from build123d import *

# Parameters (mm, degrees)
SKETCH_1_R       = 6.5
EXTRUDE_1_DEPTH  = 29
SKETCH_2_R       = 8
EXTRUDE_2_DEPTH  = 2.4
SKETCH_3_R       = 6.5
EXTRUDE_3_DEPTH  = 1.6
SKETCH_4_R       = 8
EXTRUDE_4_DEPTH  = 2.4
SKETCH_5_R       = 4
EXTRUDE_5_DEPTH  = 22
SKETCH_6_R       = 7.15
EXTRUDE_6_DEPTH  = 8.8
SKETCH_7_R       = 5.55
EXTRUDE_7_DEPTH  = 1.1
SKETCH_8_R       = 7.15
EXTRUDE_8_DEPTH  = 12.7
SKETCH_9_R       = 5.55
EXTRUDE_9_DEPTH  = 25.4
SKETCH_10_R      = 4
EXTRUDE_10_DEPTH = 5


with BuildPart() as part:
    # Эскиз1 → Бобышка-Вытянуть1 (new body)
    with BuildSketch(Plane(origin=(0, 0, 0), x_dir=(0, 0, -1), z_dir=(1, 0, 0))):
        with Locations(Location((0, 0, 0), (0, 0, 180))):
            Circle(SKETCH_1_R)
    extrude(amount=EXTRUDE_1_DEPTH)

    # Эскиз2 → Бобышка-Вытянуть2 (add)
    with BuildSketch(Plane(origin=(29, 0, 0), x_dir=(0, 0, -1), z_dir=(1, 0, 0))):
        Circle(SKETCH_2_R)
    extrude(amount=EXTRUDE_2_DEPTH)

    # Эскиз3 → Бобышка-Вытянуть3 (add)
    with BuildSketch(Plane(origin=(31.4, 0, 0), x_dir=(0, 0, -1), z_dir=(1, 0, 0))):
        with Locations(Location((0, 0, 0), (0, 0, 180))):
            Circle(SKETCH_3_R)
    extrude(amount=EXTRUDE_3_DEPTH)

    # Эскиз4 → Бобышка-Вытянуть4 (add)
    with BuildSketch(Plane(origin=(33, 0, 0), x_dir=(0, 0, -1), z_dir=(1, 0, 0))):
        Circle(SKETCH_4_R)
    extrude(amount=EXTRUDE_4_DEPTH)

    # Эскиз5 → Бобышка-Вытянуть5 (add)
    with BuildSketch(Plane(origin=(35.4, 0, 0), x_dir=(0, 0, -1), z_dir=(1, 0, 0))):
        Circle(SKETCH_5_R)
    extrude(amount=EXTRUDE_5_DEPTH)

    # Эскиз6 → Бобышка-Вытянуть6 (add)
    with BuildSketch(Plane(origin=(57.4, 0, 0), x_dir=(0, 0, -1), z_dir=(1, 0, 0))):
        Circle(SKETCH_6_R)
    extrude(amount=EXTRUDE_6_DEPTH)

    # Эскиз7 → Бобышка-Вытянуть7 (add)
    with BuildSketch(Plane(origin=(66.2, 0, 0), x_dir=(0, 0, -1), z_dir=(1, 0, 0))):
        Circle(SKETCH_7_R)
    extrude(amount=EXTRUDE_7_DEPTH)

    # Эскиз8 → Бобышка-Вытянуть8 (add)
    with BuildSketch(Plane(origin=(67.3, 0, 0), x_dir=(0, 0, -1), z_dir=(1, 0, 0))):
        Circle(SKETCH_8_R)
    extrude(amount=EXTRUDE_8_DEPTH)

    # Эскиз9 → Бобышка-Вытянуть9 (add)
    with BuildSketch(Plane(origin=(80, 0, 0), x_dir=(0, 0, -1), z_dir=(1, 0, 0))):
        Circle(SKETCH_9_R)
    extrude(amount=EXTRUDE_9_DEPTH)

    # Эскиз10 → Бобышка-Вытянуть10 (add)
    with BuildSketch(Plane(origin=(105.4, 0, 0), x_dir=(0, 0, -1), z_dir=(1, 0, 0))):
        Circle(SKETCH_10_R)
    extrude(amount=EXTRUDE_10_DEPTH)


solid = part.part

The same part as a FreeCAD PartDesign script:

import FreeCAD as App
import Part
import Sketcher

V = App.Vector
Q = App.Units.Quantity

doc = App.newDocument("Part")
body = doc.addObject("PartDesign::Body", "Body")

# Sketch on YZ plane
sketch1 = doc.addObject("Sketcher::SketchObject", "Sketch")
body.addObject(sketch1)
sketch1.AttachmentSupport = (doc.YZ_Plane, [""])
sketch1.MapMode = "FlatFace"
sketch1.addGeometry(Part.Circle(V(0, 0, 0), V(0, 0, 1), 6), False)
sketch1.addConstraint([
    Sketcher.Constraint("Coincident", 0, 3, -1, 1),
    Sketcher.Constraint("Diameter", 0, Q("13 mm")),
])
pad1 = doc.addObject("PartDesign::Pad", "Pad")
body.addObject(pad1)
pad1.Profile = sketch1
pad1.Length = 29

# Sketch on YZ plane
sketch2 = doc.addObject("Sketcher::SketchObject", "Sketch001")
body.addObject(sketch2)
sketch2.AttachmentSupport = (doc.YZ_Plane, [""])
sketch2.MapMode = "FlatFace"
sketch2.AttachmentOffset = App.Placement(V(0, 0, 29), App.Rotation())
sketch2.addGeometry(Part.Circle(V(0, 0, 0), V(0, 0, 1), 8), False)
sketch2.addConstraint([
    Sketcher.Constraint("Coincident", 0, 3, -1, 1),
    Sketcher.Constraint("Diameter", 0, Q("16 mm")),
])
pad2 = doc.addObject("PartDesign::Pad", "Pad001")
body.addObject(pad2)
pad2.Profile = sketch2
pad2.Length = 2.4

# Sketch on YZ plane
sketch3 = doc.addObject("Sketcher::SketchObject", "Sketch002")
body.addObject(sketch3)
sketch3.AttachmentSupport = (doc.YZ_Plane, [""])
sketch3.MapMode = "FlatFace"
sketch3.AttachmentOffset = App.Placement(V(0, 0, 31.4), App.Rotation())
sketch3.addGeometry(Part.Circle(V(0, 0, 0), V(0, 0, 1), 6), False)
sketch3.addConstraint([
    Sketcher.Constraint("Coincident", 0, 3, -1, 1),
    Sketcher.Constraint("Diameter", 0, Q("13 mm")),
])
pad3 = doc.addObject("PartDesign::Pad", "Pad002")
body.addObject(pad3)
pad3.Profile = sketch3
pad3.Length = 1.6

# Sketch on YZ plane
sketch4 = doc.addObject("Sketcher::SketchObject", "Sketch003")
body.addObject(sketch4)
sketch4.AttachmentSupport = (doc.YZ_Plane, [""])
sketch4.MapMode = "FlatFace"
sketch4.AttachmentOffset = App.Placement(V(0, 0, 33), App.Rotation())
sketch4.addGeometry(Part.Circle(V(0, 0, 0), V(0, 0, 1), 8), False)
sketch4.addConstraint([
    Sketcher.Constraint("Coincident", 0, 3, -1, 1),
    Sketcher.Constraint("Diameter", 0, Q("16 mm")),
])
pad4 = doc.addObject("PartDesign::Pad", "Pad003")
body.addObject(pad4)
pad4.Profile = sketch4
pad4.Length = 2.4

# Sketch on YZ plane
sketch5 = doc.addObject("Sketcher::SketchObject", "Sketch004")
body.addObject(sketch5)
sketch5.AttachmentSupport = (doc.YZ_Plane, [""])
sketch5.MapMode = "FlatFace"
sketch5.AttachmentOffset = App.Placement(V(0, 0, 35.4), App.Rotation())
sketch5.addGeometry(Part.Circle(V(0, 0, 0), V(0, 0, 1), 4), False)
sketch5.addConstraint([
    Sketcher.Constraint("Coincident", 0, 3, -1, 1),
    Sketcher.Constraint("Diameter", 0, Q("8 mm")),
])
pad5 = doc.addObject("PartDesign::Pad", "Pad004")
body.addObject(pad5)
pad5.Profile = sketch5
pad5.Length = 22

# Sketch on YZ plane
sketch6 = doc.addObject("Sketcher::SketchObject", "Sketch005")
body.addObject(sketch6)
sketch6.AttachmentSupport = (doc.YZ_Plane, [""])
sketch6.MapMode = "FlatFace"
sketch6.AttachmentOffset = App.Placement(V(0, 0, 57.4), App.Rotation())
sketch6.addGeometry(Part.Circle(V(0, 0, 0), V(0, 0, 1), 7), False)
sketch6.addConstraint([
    Sketcher.Constraint("Coincident", 0, 3, -1, 1),
    Sketcher.Constraint("Diameter", 0, Q("14.3 mm")),
])
pad6 = doc.addObject("PartDesign::Pad", "Pad005")
body.addObject(pad6)
pad6.Profile = sketch6
pad6.Length = 8.8

# Sketch on YZ plane
sketch7 = doc.addObject("Sketcher::SketchObject", "Sketch006")
body.addObject(sketch7)
sketch7.AttachmentSupport = (doc.YZ_Plane, [""])
sketch7.MapMode = "FlatFace"
sketch7.AttachmentOffset = App.Placement(V(0, 0, 66.2), App.Rotation())
sketch7.addGeometry(Part.Circle(V(0, 0, 0), V(0, 0, 1), 6), False)
sketch7.addConstraint([
    Sketcher.Constraint("Coincident", 0, 3, -1, 1),
    Sketcher.Constraint("Diameter", 0, Q("11.1 mm")),
])
pad7 = doc.addObject("PartDesign::Pad", "Pad006")
body.addObject(pad7)
pad7.Profile = sketch7
pad7.Length = 1.1

# Sketch on YZ plane
sketch8 = doc.addObject("Sketcher::SketchObject", "Sketch007")
body.addObject(sketch8)
sketch8.AttachmentSupport = (doc.YZ_Plane, [""])
sketch8.MapMode = "FlatFace"
sketch8.AttachmentOffset = App.Placement(V(0, 0, 67.3), App.Rotation())
sketch8.addGeometry(Part.Circle(V(0, 0, 0), V(0, 0, 1), 7), False)
sketch8.addConstraint([
    Sketcher.Constraint("Coincident", 0, 3, -1, 1),
    Sketcher.Constraint("Diameter", 0, Q("14.3 mm")),
])
pad8 = doc.addObject("PartDesign::Pad", "Pad007")
body.addObject(pad8)
pad8.Profile = sketch8
pad8.Length = 12.7

# Sketch on YZ plane
sketch9 = doc.addObject("Sketcher::SketchObject", "Sketch008")
body.addObject(sketch9)
sketch9.AttachmentSupport = (doc.YZ_Plane, [""])
sketch9.MapMode = "FlatFace"
sketch9.AttachmentOffset = App.Placement(V(0, 0, 80), App.Rotation())
sketch9.addGeometry(Part.Circle(V(0, 0, 0), V(0, 0, 1), 6), False)
sketch9.addConstraint([
    Sketcher.Constraint("Coincident", 0, 3, -1, 1),
    Sketcher.Constraint("Diameter", 0, Q("11.1 mm")),
])
pad9 = doc.addObject("PartDesign::Pad", "Pad008")
body.addObject(pad9)
pad9.Profile = sketch9
pad9.Length = 25.4

# Sketch on YZ plane
sketch10 = doc.addObject("Sketcher::SketchObject", "Sketch009")
body.addObject(sketch10)
sketch10.AttachmentSupport = (doc.YZ_Plane, [""])
sketch10.MapMode = "FlatFace"
sketch10.AttachmentOffset = App.Placement(V(0, 0, 105.4), App.Rotation())
sketch10.addGeometry(Part.Circle(V(0, 0, 0), V(0, 0, 1), 4), False)
sketch10.addConstraint([
    Sketcher.Constraint("Coincident", 0, 3, -1, 1),
    Sketcher.Constraint("Diameter", 0, Q("8 mm")),
])
pad10 = doc.addObject("PartDesign::Pad", "Pad009")
body.addObject(pad10)
pad10.Profile = sketch10
pad10.Length = 5

doc.recompute()
